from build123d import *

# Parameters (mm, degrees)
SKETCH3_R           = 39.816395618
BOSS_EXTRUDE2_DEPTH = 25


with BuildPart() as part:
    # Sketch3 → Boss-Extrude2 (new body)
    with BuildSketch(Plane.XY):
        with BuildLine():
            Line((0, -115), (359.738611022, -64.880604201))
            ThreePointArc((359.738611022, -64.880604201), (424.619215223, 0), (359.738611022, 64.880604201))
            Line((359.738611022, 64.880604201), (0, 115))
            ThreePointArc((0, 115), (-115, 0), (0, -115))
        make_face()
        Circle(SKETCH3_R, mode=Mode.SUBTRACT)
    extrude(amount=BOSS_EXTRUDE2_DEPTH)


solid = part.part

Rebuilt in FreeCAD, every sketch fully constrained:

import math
import FreeCAD as App
import Part
import Sketcher
from FreeCAD import Vector

doc = App.newDocument("Part")
body = doc.addObject("PartDesign::Body", "Body")

# Sketch on XY plane
sketch1 = body.newObject("Sketcher::SketchObject", "Sketch")
sketch1.AttachmentSupport = (doc.getObject("XY_Plane"), [""])
sketch1.MapMode = "FlatFace"
sketch1.addGeometry(Part.LineSegment(Vector(0, -115, 0), Vector(360, -65, 0)), False)
sketch1.addGeometry(Part.ArcOfCircle(Part.Circle(Vector(360, 0, 0), Vector(0, 0, 1), 65), math.radians(-90), math.radians(90)), False)
sketch1.addGeometry(Part.LineSegment(Vector(360, 65, 0), Vector(0, 115, 0)), False)
sketch1.addGeometry(Part.ArcOfCircle(Part.Circle(Vector(0, 0, 0), Vector(0, 0, 1), 115), math.radians(90), math.radians(270)), False)
sketch1.addGeometry(Part.Circle(Vector(0, 0, 0), Vector(0, 0, 1), 40), False)
sketch1.addConstraint(Sketcher.Constraint("Coincident", 0, 2, 1, 1))
sketch1.addConstraint(Sketcher.Constraint("Coincident", 1, 2, 2, 1))
sketch1.addConstraint(Sketcher.Constraint("Coincident", 2, 2, 3, 1))
sketch1.addConstraint(Sketcher.Constraint("Coincident", 3, 2, 0, 1))
sketch1.addConstraint(Sketcher.Constraint("Coincident", 3, 3, -1, 1))
sketch1.addConstraint(Sketcher.Constraint("Coincident", 4, 3, -1, 1))
sketch1.addConstraint(Sketcher.Constraint("Symmetric", 0, 2, 1, 2, -1))
sketch1.addConstraint(Sketcher.Constraint("PointOnObject", 2, 2, -2))
sketch1.addConstraint(Sketcher.Constraint("PointOnObject", 3, 2, -2))
sketch1.addConstraint(Sketcher.Constraint("Vertical", 1, 3, 0, 2))
sketch1.addConstraint(Sketcher.Constraint("Radius", 3, 115.0))
sketch1.addConstraint(Sketcher.Constraint("Diameter", 4, 79.632791))
sketch1.addConstraint(Sketcher.Constraint("Radius", 1, 64.880604))
sketch1.addConstraint(Sketcher.Constraint("Distance", 0, 363.213191))
pad1 = body.newObject("PartDesign::Pad", "Pad")
pad1.Profile = sketch1
pad1.Length = 25

doc.recompute()
